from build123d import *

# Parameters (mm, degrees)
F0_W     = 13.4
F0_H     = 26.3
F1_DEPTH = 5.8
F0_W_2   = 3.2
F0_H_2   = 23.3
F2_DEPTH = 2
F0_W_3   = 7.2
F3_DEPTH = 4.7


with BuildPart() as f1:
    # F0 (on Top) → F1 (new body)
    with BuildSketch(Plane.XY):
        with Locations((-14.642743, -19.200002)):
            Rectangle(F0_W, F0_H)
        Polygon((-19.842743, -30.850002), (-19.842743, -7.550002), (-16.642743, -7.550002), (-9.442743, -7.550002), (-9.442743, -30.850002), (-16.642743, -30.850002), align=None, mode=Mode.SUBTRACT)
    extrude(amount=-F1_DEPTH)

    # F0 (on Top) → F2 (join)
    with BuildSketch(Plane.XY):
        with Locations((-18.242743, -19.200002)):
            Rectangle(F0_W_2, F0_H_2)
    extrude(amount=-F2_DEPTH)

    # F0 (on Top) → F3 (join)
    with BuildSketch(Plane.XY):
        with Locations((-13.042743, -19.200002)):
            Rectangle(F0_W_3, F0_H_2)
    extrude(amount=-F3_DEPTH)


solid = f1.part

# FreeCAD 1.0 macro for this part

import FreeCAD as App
import Part
import Sketcher

doc = App.newDocument("Part")
params = doc.addObject("Spreadsheet::Sheet", "Params")
for row, (alias, value) in enumerate([
    ("sketch1_width", "13.4 mm"),
    ("sketch1_width2", "10.4 mm"),
    ("sketch1_height", "26.3 mm"),
    ("sketch1_height2", "23.3 mm"),
    ("pad1_length", "5.8 mm"),
    ("sketch2_width", "3.2 mm"),
    ("sketch2_height", "23.3 mm"),
    ("pad2_length", "2 mm"),
    ("sketch3_width", "7.2 mm"),
    ("sketch3_height", "23.3 mm"),
    ("pad3_length", "4.7 mm"),
], start=1):
    params.set(f"A{row}", alias)
    params.set(f"B{row}", "=" + value)
    params.setAlias(f"B{row}", alias)

body = doc.addObject("PartDesign::Body", "Body")

sketch1 = body.newObject("Sketcher::SketchObject", "Sketch")
sketch1.AttachmentSupport = (doc.getObject("XY_Plane"), [""])
sketch1.MapMode = "FlatFace"
sketch1.addGeometry(Part.LineSegment(App.Vector(-21.342743, -6.050002, 0), App.Vector(-21.342743, -32.350002, 0)), False)
sketch1.addGeometry(Part.LineSegment(App.Vector(-21.342743, -32.350002, 0), App.Vector(-7.942743, -32.350002, 0)), False)
sketch1.addGeometry(Part.LineSegment(App.Vector(-7.942743, -32.350002, 0), App.Vector(-7.942743, -6.050002, 0)), False)
sketch1.addGeometry(Part.LineSegment(App.Vector(-7.942743, -6.050002, 0), App.Vector(-21.342743, -6.050002, 0)), False)
sketch1.addGeometry(Part.LineSegment(App.Vector(-9.442743, -30.850002, 0), App.Vector(-19.842743, -30.850002, 0)), False)
sketch1.addGeometry(Part.LineSegment(App.Vector(-19.842743, -30.850002, 0), App.Vector(-19.842743, -7.550002, 0)), False)
sketch1.addGeometry(Part.LineSegment(App.Vector(-19.842743, -7.550002, 0), App.Vector(-9.442743, -7.550002, 0)), False)
sketch1.addGeometry(Part.LineSegment(App.Vector(-9.442743, -7.550002, 0), App.Vector(-9.442743, -30.850002, 0)), False)
sketch1.addConstraint(Sketcher.Constraint("Coincident", 0, 2, 1, 1))
sketch1.addConstraint(Sketcher.Constraint("Coincident", 1, 2, 2, 1))
sketch1.addConstraint(Sketcher.Constraint("Coincident", 2, 2, 3, 1))
sketch1.addConstraint(Sketcher.Constraint("Coincident", 3, 2, 0, 1))
sketch1.addConstraint(Sketcher.Constraint("Coincident", 4, 2, 5, 1))
sketch1.addConstraint(Sketcher.Constraint("Coincident", 5, 2, 6, 1))
sketch1.addConstraint(Sketcher.Constraint("Coincident", 6, 2, 7, 1))
sketch1.addConstraint(Sketcher.Constraint("Coincident", 7, 2, 4, 1))
sketch1.addConstraint(Sketcher.Constraint("Vertical", 0))
sketch1.addConstraint(Sketcher.Constraint("Horizontal", 1))
sketch1.addConstraint(Sketcher.Constraint("Vertical", 2))
sketch1.addConstraint(Sketcher.Constraint("Horizontal", 3))
sketch1.addConstraint(Sketcher.Constraint("Horizontal", 4))
sketch1.addConstraint(Sketcher.Constraint("Vertical", 5))
sketch1.addConstraint(Sketcher.Constraint("Horizontal", 6))
sketch1.addConstraint(Sketcher.Constraint("Vertical", 7))
sketch1.addConstraint(Sketcher.Constraint("DistanceX", 1, 1, 1, 2, 13.4))
sketch1.addConstraint(Sketcher.Constraint("DistanceX", 4, 2, 4, 1, 10.4))
sketch1.addConstraint(Sketcher.Constraint("DistanceY", 0, 2, 0, 1, 26.3))
sketch1.addConstraint(Sketcher.Constraint("DistanceY", 5, 1, 5, 2, 23.3))
sketch1.addConstraint(Sketcher.Constraint("DistanceX", 0, 2, 4, 2, 1.5))
sketch1.addConstraint(Sketcher.Constraint("DistanceY", 0, 2, 4, 2, 1.5))
sketch1.addConstraint(Sketcher.Constraint("DistanceY", 4, 2, -1, 1, 30.850002))
sketch1.addConstraint(Sketcher.Constraint("DistanceX", 0, 2, -1, 1, 21.342743))
sketch1.setExpression("Constraints[16]", "Params.sketch1_width")
sketch1.setExpression("Constraints[17]", "Params.sketch1_width2")
sketch1.setExpression("Constraints[18]", "Params.sketch1_height")
sketch1.setExpression("Constraints[19]", "Params.sketch1_height2")
pad1 = body.newObject("PartDesign::Pad", "Pad")
pad1.Profile = sketch1
pad1.setExpression("Length", "Params.pad1_length")
pad1.Reversed = True

sketch2 = body.newObject("Sketcher::SketchObject", "Sketch001")
sketch2.AttachmentSupport = (doc.getObject("XY_Plane"), [""])
sketch2.MapMode = "FlatFace"
sketch2.addGeometry(Part.LineSegment(App.Vector(-19.842743, -7.550002, 0), App.Vector(-19.842743, -30.850002, 0)), False)
sketch2.addGeometry(Part.LineSegment(App.Vector(-19.842743, -30.850002, 0), App.Vector(-16.642743, -30.850002, 0)), False)
sketch2.addGeometry(Part.LineSegment(App.Vector(-16.642743, -30.850002, 0), App.Vector(-16.642743, -7.550002, 0)), False)
sketch2.addGeometry(Part.LineSegment(App.Vector(-16.642743, -7.550002, 0), App.Vector(-19.842743, -7.550002, 0)), False)
sketch2.addConstraint(Sketcher.Constraint("Coincident", 0, 2, 1, 1))
sketch2.addConstraint(Sketcher.Constraint("Coincident", 1, 2, 2, 1))
sketch2.addConstraint(Sketcher.Constraint("Coincident", 2, 2, 3, 1))
sketch2.addConstraint(Sketcher.Constraint("Coincident", 3, 2, 0, 1))
sketch2.addConstraint(Sketcher.Constraint("Vertical", 0))
sketch2.addConstraint(Sketcher.Constraint("Horizontal", 1))
sketch2.addConstraint(Sketcher.Constraint("Vertical", 2))
sketch2.addConstraint(Sketcher.Constraint("Horizontal", 3))
sketch2.addConstraint(Sketcher.Constraint("DistanceX", 1, 1, 1, 2, 3.2))
sketch2.addConstraint(Sketcher.Constraint("DistanceY", 0, 2, 0, 1, 23.3))
sketch2.addConstraint(Sketcher.Constraint("DistanceY", 0, 2, -1, 1, 30.850002))
sketch2.addConstraint(Sketcher.Constraint("DistanceX", 0, 2, -1, 1, 19.842743))
sketch2.setExpression("Constraints[8]", "Params.sketch2_width")
sketch2.setExpression("Constraints[9]", "Params.sketch2_height")
pad2 = body.newObject("PartDesign::Pad", "Pad001")
pad2.Profile = sketch2
pad2.setExpression("Length", "Params.pad2_length")
pad2.Reversed = True

sketch3 = body.newObject("Sketcher::SketchObject", "Sketch002")
sketch3.AttachmentSupport = (doc.getObject("XY_Plane"), [""])
sketch3.MapMode = "FlatFace"
sketch3.addGeometry(Part.LineSegment(App.Vector(-16.642743, -7.550002, 0), App.Vector(-16.642743, -30.850002, 0)), False)
sketch3.addGeometry(Part.LineSegment(App.Vector(-16.642743, -30.850002, 0), App.Vector(-9.442743, -30.850002, 0)), False)
sketch3.addGeometry(Part.LineSegment(App.Vector(-9.442743, -30.850002, 0), App.Vector(-9.442743, -7.550002, 0)), False)
sketch3.addGeometry(Part.LineSegment(App.Vector(-9.442743, -7.550002, 0), App.Vector(-16.642743, -7.550002, 0)), False)
sketch3.addConstraint(Sketcher.Constraint("Coincident", 0, 2, 1, 1))
sketch3.addConstraint(Sketcher.Constraint("Coincident", 1, 2, 2, 1))
sketch3.addConstraint(Sketcher.Constraint("Coincident", 2, 2, 3, 1))
sketch3.addConstraint(Sketcher.Constraint("Coincident", 3, 2, 0, 1))
sketch3.addConstraint(Sketcher.Constraint("Vertical", 0))
sketch3.addConstraint(Sketcher.Constraint("Horizontal", 1))
sketch3.addConstraint(Sketcher.Constraint("Vertical", 2))
sketch3.addConstraint(Sketcher.Constraint("Horizontal", 3))
sketch3.addConstraint(Sketcher.Constraint("DistanceX", 1, 1, 1, 2, 7.2))
sketch3.addConstraint(Sketcher.Constraint("DistanceY", 0, 2, 0, 1, 23.3))
sketch3.addConstraint(Sketcher.Constraint("DistanceY", 0, 2, -1, 1, 30.850002))
sketch3.addConstraint(Sketcher.Constraint("DistanceX", 0, 2, -1, 1, 16.642743))
sketch3.setExpression("Constraints[8]", "Params.sketch3_width")
sketch3.setExpression("Constraints[9]", "Params.sketch3_height")
pad3 = body.newObject("PartDesign::Pad", "Pad002")
pad3.Profile = sketch3
pad3.setExpression("Length", "Params.pad3_length")
pad3.Reversed = True

doc.recompute()
